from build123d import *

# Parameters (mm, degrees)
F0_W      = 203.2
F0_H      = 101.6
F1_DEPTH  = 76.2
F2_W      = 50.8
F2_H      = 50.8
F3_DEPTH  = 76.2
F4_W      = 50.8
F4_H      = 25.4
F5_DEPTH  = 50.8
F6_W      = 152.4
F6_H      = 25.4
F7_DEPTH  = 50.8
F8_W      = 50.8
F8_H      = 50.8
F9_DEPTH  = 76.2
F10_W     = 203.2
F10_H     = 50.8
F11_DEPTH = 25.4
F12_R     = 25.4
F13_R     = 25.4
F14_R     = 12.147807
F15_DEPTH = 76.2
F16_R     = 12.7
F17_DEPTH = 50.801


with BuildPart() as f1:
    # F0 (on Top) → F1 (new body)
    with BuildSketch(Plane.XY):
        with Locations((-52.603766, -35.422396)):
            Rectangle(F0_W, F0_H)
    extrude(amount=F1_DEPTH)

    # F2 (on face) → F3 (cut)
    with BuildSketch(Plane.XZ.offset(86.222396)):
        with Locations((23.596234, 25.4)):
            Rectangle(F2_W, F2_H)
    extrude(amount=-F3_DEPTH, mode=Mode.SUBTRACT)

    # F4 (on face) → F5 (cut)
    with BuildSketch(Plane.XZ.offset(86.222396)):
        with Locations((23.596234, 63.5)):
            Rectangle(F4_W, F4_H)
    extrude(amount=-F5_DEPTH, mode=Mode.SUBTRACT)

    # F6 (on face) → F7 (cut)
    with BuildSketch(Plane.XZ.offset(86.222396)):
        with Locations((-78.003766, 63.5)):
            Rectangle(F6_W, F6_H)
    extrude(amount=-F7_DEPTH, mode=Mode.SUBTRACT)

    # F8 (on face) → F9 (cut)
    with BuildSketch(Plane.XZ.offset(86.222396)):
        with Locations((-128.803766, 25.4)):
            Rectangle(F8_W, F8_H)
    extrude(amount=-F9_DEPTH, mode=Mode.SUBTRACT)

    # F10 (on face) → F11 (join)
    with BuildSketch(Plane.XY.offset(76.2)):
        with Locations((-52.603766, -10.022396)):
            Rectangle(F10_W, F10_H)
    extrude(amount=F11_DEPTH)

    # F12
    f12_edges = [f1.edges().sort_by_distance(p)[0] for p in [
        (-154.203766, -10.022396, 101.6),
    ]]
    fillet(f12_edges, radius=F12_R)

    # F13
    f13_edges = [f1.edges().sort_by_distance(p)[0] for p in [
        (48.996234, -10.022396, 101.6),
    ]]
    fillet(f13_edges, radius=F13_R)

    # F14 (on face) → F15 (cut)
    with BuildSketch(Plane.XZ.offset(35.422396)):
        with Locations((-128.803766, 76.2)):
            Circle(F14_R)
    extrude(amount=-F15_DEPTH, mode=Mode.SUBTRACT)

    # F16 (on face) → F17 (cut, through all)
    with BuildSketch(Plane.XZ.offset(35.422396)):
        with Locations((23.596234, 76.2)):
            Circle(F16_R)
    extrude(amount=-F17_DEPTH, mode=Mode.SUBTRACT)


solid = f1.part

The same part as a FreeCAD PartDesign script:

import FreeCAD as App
import Part
import Sketcher
Q = App.Units.Quantity


def edges_at(feature, points):
    """Names of the edges that pass closest to the given points."""
    edges = feature.Shape.Edges
    near = lambda p: min(range(len(edges)), key=lambda i: edges[i].distToShape(Part.Vertex(*p))[0])
    return sorted({f"Edge{near(p) + 1}" for p in points})

doc = App.newDocument("Part")
body = doc.addObject("PartDesign::Body", "Body")

# Sketch on XY plane
sketch1 = body.newObject("Sketcher::SketchObject", "Sketch")
sketch1.AttachmentSupport = (doc.getObject("XY_Plane"), [""])
sketch1.MapMode = "FlatFace"
sketch1.addGeometry([
    Part.LineSegment(App.Vector(-154, 15, 0), App.Vector(-154, -86, 0)),
    Part.LineSegment(App.Vector(-154, -86, 0), App.Vector(49, -86, 0)),
    Part.LineSegment(App.Vector(49, -86, 0), App.Vector(49, 15, 0)),
    Part.LineSegment(App.Vector(49, 15, 0), App.Vector(-154, 15, 0)),
], False)
sketch1.addConstraint([
    Sketcher.Constraint("Coincident", 0, 2, 1, 1),
    Sketcher.Constraint("Coincident", 1, 2, 2, 1),
    Sketcher.Constraint("Coincident", 2, 2, 3, 1),
    Sketcher.Constraint("Coincident", 3, 2, 0, 1),
    Sketcher.Constraint("Vertical", 0),
    Sketcher.Constraint("Horizontal", 1),
    Sketcher.Constraint("Vertical", 2),
    Sketcher.Constraint("Horizontal", 3),
    Sketcher.Constraint("DistanceX", 1, 1, 1, 2, Q("8 in")),
    Sketcher.Constraint("DistanceY", 0, 2, 0, 1, Q("4 in")),
    Sketcher.Constraint("DistanceX", 0, 2, -1, 1, Q("154.203766 mm")),
    Sketcher.Constraint("DistanceY", 0, 2, -1, 1, Q("86.222396 mm")),
])
pad1 = body.newObject("PartDesign::Pad", "Pad")
pad1.Profile = sketch1
pad1.Length = Q("3 in")

# Sketch on XZ plane
sketch2 = body.newObject("Sketcher::SketchObject", "Sketch001")
sketch2.AttachmentSupport = (doc.getObject("XZ_Plane"), [""])
sketch2.MapMode = "FlatFace"
sketch2.AttachmentOffset = App.Placement(App.Vector(0, 0, 86.222396), App.Rotation())
sketch2.addGeometry([
    Part.LineSegment(App.Vector(-2, 51, 0), App.Vector(-2, 0, 0)),
    Part.LineSegment(App.Vector(-2, 0, 0), App.Vector(49, 0, 0)),
    Part.LineSegment(App.Vector(49, 0, 0), App.Vector(49, 51, 0)),
    Part.LineSegment(App.Vector(49, 51, 0), App.Vector(-2, 51, 0)),
], False)
sketch2.addConstraint([
    Sketcher.Constraint("Coincident", 0, 2, 1, 1),
    Sketcher.Constraint("Coincident", 1, 2, 2, 1),
    Sketcher.Constraint("Coincident", 2, 2, 3, 1),
    Sketcher.Constraint("Coincident", 3, 2, 0, 1),
    Sketcher.Constraint("Vertical", 0),
    Sketcher.Constraint("Horizontal", 1),
    Sketcher.Constraint("Vertical", 2),
    Sketcher.Constraint("Horizontal", 3),
    Sketcher.Constraint("PointOnObject", 0, 2, -1),
    Sketcher.Constraint("Equal", 3, 0),
    Sketcher.Constraint("DistanceX", 1, 1, 1, 2, Q("2 in")),
    Sketcher.Constraint("DistanceX", 0, 2, -1, 1, Q("1.803766 mm")),
])
pocket1 = body.newObject("PartDesign::Pocket", "Pocket")
pocket1.Profile = sketch2
pocket1.Length = Q("3 in")

# Sketch on XZ plane
sketch3 = body.newObject("Sketcher::SketchObject", "Sketch002")
sketch3.AttachmentSupport = (doc.getObject("XZ_Plane"), [""])
sketch3.MapMode = "FlatFace"
sketch3.AttachmentOffset = App.Placement(App.Vector(0, 0, 86.222396), App.Rotation())
sketch3.addGeometry([
    Part.LineSegment(App.Vector(-2, 76, 0), App.Vector(-2, 51, 0)),
    Part.LineSegment(App.Vector(-2, 51, 0), App.Vector(49, 51, 0)),
    Part.LineSegment(App.Vector(49, 51, 0), App.Vector(49, 76, 0)),
    Part.LineSegment(App.Vector(49, 76, 0), App.Vector(-2, 76, 0)),
], False)
sketch3.addConstraint([
    Sketcher.Constraint("Coincident", 0, 2, 1, 1),
    Sketcher.Constraint("Coincident", 1, 2, 2, 1),
    Sketcher.Constraint("Coincident", 2, 2, 3, 1),
    Sketcher.Constraint("Coincident", 3, 2, 0, 1),
    Sketcher.Constraint("Vertical", 0),
    Sketcher.Constraint("Horizontal", 1),
    Sketcher.Constraint("Vertical", 2),
    Sketcher.Constraint("Horizontal", 3),
    Sketcher.Constraint("DistanceX", 1, 1, 1, 2, Q("2 in")),
    Sketcher.Constraint("DistanceY", 0, 2, 0, 1, Q("1 in")),
    Sketcher.Constraint("DistanceY", -1, 1, 0, 2, Q("2 in")),
    Sketcher.Constraint("DistanceX", 0, 2, -1, 1, Q("1.803766 mm")),
])
pocket2 = body.newObject("PartDesign::Pocket", "Pocket001")
pocket2.Profile = sketch3
pocket2.Length = Q("2 in")

# Sketch on XZ plane
sketch4 = body.newObject("Sketcher::SketchObject", "Sketch003")
sketch4.AttachmentSupport = (doc.getObject("XZ_Plane"), [""])
sketch4.MapMode = "FlatFace"
sketch4.AttachmentOffset = App.Placement(App.Vector(0, 0, 86.222396), App.Rotation())
sketch4.addGeometry([
    Part.LineSegment(App.Vector(-154, 76, 0), App.Vector(-154, 51, 0)),
    Part.LineSegment(App.Vector(-154, 51, 0), App.Vector(-2, 51, 0)),
    Part.LineSegment(App.Vector(-2, 51, 0), App.Vector(-2, 76, 0)),
    Part.LineSegment(App.Vector(-2, 76, 0), App.Vector(-154, 76, 0)),
], False)
sketch4.addConstraint([
    Sketcher.Constraint("Coincident", 0, 2, 1, 1),
    Sketcher.Constraint("Coincident", 1, 2, 2, 1),
    Sketcher.Constraint("Coincident", 2, 2, 3, 1),
    Sketcher.Constraint("Coincident", 3, 2, 0, 1),
    Sketcher.Constraint("Vertical", 0),
    Sketcher.Constraint("Horizontal", 1),
    Sketcher.Constraint("Vertical", 2),
    Sketcher.Constraint("Horizontal", 3),
    Sketcher.Constraint("DistanceX", 1, 1, 1, 2, Q("6 in")),
    Sketcher.Constraint("DistanceY", 0, 2, 0, 1, Q("1 in")),
    Sketcher.Constraint("DistanceY", -1, 1, 0, 2, Q("2 in")),
    Sketcher.Constraint("DistanceX", 0, 2, -1, 1, Q("154.203766 mm")),
])
pocket3 = body.newObject("PartDesign::Pocket", "Pocket002")
pocket3.Profile = sketch4
pocket3.Length = Q("2 in")

# Sketch on XZ plane
sketch5 = body.newObject("Sketcher::SketchObject", "Sketch004")
sketch5.AttachmentSupport = (doc.getObject("XZ_Plane"), [""])
sketch5.MapMode = "FlatFace"
sketch5.AttachmentOffset = App.Placement(App.Vector(0, 0, 86.222396), App.Rotation())
sketch5.addGeometry([
    Part.LineSegment(App.Vector(-154, 51, 0), App.Vector(-154, 0, 0)),
    Part.LineSegment(App.Vector(-154, 0, 0), App.Vector(-103, 0, 0)),
    Part.LineSegment(App.Vector(-103, 0, 0), App.Vector(-103, 51, 0)),
    Part.LineSegment(App.Vector(-103, 51, 0), App.Vector(-154, 51, 0)),
], False)
sketch5.addConstraint([
    Sketcher.Constraint("Coincident", 0, 2, 1, 1),
    Sketcher.Constraint("Coincident", 1, 2, 2, 1),
    Sketcher.Constraint("Coincident", 2, 2, 3, 1),
    Sketcher.Constraint("Coincident", 3, 2, 0, 1),
    Sketcher.Constraint("Vertical", 0),
    Sketcher.Constraint("Horizontal", 1),
    Sketcher.Constraint("Vertical", 2),
    Sketcher.Constraint("Horizontal", 3),
    Sketcher.Constraint("PointOnObject", 0, 2, -1),
    Sketcher.Constraint("Equal", 3, 0),
    Sketcher.Constraint("DistanceX", 1, 1, 1, 2, Q("2 in")),
    Sketcher.Constraint("DistanceX", 0, 2, -1, 1, Q("154.203766 mm")),
])
pocket4 = body.newObject("PartDesign::Pocket", "Pocket003")
pocket4.Profile = sketch5
pocket4.Length = Q("3 in")

# Sketch on XY plane
sketch6 = body.newObject("Sketcher::SketchObject", "Sketch005")
sketch6.AttachmentSupport = (doc.getObject("XY_Plane"), [""])
sketch6.MapMode = "FlatFace"
sketch6.AttachmentOffset = App.Placement(App.Vector(0, 0, 3 * 25.4), App.Rotation())
sketch6.addGeometry([
    Part.LineSegment(App.Vector(-154, 15, 0), App.Vector(-154, -35, 0)),
    Part.LineSegment(App.Vector(-154, -35, 0), App.Vector(49, -35, 0)),
    Part.LineSegment(App.Vector(49, -35, 0), App.Vector(49, 15, 0)),
    Part.LineSegment(App.Vector(49, 15, 0), App.Vector(-154, 15, 0)),
], False)
sketch6.addConstraint([
    Sketcher.Constraint("Coincident", 0, 2, 1, 1),
    Sketcher.Constraint("Coincident", 1, 2, 2, 1),
    Sketcher.Constraint("Coincident", 2, 2, 3, 1),
    Sketcher.Constraint("Coincident", 3, 2, 0, 1),
    Sketcher.Constraint("Vertical", 0),
    Sketcher.Constraint("Horizontal", 1),
    Sketcher.Constraint("Vertical", 2),
    Sketcher.Constraint("Horizontal", 3),
    Sketcher.Constraint("DistanceX", 1, 1, 1, 2, Q("8 in")),
    Sketcher.Constraint("DistanceY", 0, 2, 0, 1, Q("2 in")),
    Sketcher.Constraint("DistanceX", 0, 2, -1, 1, Q("154.203766 mm")),
    Sketcher.Constraint("DistanceY", 0, 2, -1, 1, Q("35.422396 mm")),
])
pad2 = body.newObject("PartDesign::Pad", "Pad001")
pad2.Profile = sketch6
pad2.Length = Q("1 in")
doc.recompute()

fillet = body.newObject("PartDesign::Fillet", "Fillet")
fillet.Base = (pad2, edges_at(pad2, [(-154.204, -10.022, 101.6)]))
fillet.Radius = Q("1 in")
doc.recompute()

fillet2 = body.newObject("PartDesign::Fillet", "Fillet001")
fillet2.Base = (fillet, edges_at(fillet, [(48.996, -10.022, 101.6)]))
fillet2.Radius = Q("1 in")

# Sketch on XZ plane
sketch7 = body.newObject("Sketcher::SketchObject", "Sketch006")
sketch7.AttachmentSupport = (doc.getObject("XZ_Plane"), [""])
sketch7.MapMode = "FlatFace"
sketch7.AttachmentOffset = App.Placement(App.Vector(0, 0, 35.422396), App.Rotation())
sketch7.addGeometry(Part.Circle(App.Vector(-129, 76, 0), App.Vector(0, 0, 1), 12), False)
sketch7.addConstraint([
    Sketcher.Constraint("DistanceY", -1, 1, 0, 3, Q("3 in")),
    Sketcher.Constraint("Diameter", 0, Q("24.295614 mm")),
    Sketcher.Constraint("DistanceX", 0, 3, -1, 1, Q("128.803766 mm")),
])
pocket5 = body.newObject("PartDesign::Pocket", "Pocket004")
pocket5.Profile = sketch7
pocket5.Length = Q("3 in")

# Sketch on XZ plane
sketch8 = body.newObject("Sketcher::SketchObject", "Sketch007")
sketch8.AttachmentSupport = (doc.getObject("XZ_Plane"), [""])
sketch8.MapMode = "FlatFace"
sketch8.AttachmentOffset = App.Placement(App.Vector(0, 0, 35.422396), App.Rotation())
sketch8.addGeometry(Part.Circle(App.Vector(24, 76, 0), App.Vector(0, 0, 1), 13), False)
sketch8.addConstraint([
    Sketcher.Constraint("Diameter", 0, Q("1 in")),
    Sketcher.Constraint("DistanceY", -1, 1, 0, 3, Q("3 in")),
    Sketcher.Constraint("DistanceX", -1, 1, 0, 3, Q("23.596234 mm")),
])
pocket6 = body.newObject("PartDesign::Pocket", "Pocket005")
pocket6.Profile = sketch8
pocket6.Type = "ThroughAll"

doc.recompute()
